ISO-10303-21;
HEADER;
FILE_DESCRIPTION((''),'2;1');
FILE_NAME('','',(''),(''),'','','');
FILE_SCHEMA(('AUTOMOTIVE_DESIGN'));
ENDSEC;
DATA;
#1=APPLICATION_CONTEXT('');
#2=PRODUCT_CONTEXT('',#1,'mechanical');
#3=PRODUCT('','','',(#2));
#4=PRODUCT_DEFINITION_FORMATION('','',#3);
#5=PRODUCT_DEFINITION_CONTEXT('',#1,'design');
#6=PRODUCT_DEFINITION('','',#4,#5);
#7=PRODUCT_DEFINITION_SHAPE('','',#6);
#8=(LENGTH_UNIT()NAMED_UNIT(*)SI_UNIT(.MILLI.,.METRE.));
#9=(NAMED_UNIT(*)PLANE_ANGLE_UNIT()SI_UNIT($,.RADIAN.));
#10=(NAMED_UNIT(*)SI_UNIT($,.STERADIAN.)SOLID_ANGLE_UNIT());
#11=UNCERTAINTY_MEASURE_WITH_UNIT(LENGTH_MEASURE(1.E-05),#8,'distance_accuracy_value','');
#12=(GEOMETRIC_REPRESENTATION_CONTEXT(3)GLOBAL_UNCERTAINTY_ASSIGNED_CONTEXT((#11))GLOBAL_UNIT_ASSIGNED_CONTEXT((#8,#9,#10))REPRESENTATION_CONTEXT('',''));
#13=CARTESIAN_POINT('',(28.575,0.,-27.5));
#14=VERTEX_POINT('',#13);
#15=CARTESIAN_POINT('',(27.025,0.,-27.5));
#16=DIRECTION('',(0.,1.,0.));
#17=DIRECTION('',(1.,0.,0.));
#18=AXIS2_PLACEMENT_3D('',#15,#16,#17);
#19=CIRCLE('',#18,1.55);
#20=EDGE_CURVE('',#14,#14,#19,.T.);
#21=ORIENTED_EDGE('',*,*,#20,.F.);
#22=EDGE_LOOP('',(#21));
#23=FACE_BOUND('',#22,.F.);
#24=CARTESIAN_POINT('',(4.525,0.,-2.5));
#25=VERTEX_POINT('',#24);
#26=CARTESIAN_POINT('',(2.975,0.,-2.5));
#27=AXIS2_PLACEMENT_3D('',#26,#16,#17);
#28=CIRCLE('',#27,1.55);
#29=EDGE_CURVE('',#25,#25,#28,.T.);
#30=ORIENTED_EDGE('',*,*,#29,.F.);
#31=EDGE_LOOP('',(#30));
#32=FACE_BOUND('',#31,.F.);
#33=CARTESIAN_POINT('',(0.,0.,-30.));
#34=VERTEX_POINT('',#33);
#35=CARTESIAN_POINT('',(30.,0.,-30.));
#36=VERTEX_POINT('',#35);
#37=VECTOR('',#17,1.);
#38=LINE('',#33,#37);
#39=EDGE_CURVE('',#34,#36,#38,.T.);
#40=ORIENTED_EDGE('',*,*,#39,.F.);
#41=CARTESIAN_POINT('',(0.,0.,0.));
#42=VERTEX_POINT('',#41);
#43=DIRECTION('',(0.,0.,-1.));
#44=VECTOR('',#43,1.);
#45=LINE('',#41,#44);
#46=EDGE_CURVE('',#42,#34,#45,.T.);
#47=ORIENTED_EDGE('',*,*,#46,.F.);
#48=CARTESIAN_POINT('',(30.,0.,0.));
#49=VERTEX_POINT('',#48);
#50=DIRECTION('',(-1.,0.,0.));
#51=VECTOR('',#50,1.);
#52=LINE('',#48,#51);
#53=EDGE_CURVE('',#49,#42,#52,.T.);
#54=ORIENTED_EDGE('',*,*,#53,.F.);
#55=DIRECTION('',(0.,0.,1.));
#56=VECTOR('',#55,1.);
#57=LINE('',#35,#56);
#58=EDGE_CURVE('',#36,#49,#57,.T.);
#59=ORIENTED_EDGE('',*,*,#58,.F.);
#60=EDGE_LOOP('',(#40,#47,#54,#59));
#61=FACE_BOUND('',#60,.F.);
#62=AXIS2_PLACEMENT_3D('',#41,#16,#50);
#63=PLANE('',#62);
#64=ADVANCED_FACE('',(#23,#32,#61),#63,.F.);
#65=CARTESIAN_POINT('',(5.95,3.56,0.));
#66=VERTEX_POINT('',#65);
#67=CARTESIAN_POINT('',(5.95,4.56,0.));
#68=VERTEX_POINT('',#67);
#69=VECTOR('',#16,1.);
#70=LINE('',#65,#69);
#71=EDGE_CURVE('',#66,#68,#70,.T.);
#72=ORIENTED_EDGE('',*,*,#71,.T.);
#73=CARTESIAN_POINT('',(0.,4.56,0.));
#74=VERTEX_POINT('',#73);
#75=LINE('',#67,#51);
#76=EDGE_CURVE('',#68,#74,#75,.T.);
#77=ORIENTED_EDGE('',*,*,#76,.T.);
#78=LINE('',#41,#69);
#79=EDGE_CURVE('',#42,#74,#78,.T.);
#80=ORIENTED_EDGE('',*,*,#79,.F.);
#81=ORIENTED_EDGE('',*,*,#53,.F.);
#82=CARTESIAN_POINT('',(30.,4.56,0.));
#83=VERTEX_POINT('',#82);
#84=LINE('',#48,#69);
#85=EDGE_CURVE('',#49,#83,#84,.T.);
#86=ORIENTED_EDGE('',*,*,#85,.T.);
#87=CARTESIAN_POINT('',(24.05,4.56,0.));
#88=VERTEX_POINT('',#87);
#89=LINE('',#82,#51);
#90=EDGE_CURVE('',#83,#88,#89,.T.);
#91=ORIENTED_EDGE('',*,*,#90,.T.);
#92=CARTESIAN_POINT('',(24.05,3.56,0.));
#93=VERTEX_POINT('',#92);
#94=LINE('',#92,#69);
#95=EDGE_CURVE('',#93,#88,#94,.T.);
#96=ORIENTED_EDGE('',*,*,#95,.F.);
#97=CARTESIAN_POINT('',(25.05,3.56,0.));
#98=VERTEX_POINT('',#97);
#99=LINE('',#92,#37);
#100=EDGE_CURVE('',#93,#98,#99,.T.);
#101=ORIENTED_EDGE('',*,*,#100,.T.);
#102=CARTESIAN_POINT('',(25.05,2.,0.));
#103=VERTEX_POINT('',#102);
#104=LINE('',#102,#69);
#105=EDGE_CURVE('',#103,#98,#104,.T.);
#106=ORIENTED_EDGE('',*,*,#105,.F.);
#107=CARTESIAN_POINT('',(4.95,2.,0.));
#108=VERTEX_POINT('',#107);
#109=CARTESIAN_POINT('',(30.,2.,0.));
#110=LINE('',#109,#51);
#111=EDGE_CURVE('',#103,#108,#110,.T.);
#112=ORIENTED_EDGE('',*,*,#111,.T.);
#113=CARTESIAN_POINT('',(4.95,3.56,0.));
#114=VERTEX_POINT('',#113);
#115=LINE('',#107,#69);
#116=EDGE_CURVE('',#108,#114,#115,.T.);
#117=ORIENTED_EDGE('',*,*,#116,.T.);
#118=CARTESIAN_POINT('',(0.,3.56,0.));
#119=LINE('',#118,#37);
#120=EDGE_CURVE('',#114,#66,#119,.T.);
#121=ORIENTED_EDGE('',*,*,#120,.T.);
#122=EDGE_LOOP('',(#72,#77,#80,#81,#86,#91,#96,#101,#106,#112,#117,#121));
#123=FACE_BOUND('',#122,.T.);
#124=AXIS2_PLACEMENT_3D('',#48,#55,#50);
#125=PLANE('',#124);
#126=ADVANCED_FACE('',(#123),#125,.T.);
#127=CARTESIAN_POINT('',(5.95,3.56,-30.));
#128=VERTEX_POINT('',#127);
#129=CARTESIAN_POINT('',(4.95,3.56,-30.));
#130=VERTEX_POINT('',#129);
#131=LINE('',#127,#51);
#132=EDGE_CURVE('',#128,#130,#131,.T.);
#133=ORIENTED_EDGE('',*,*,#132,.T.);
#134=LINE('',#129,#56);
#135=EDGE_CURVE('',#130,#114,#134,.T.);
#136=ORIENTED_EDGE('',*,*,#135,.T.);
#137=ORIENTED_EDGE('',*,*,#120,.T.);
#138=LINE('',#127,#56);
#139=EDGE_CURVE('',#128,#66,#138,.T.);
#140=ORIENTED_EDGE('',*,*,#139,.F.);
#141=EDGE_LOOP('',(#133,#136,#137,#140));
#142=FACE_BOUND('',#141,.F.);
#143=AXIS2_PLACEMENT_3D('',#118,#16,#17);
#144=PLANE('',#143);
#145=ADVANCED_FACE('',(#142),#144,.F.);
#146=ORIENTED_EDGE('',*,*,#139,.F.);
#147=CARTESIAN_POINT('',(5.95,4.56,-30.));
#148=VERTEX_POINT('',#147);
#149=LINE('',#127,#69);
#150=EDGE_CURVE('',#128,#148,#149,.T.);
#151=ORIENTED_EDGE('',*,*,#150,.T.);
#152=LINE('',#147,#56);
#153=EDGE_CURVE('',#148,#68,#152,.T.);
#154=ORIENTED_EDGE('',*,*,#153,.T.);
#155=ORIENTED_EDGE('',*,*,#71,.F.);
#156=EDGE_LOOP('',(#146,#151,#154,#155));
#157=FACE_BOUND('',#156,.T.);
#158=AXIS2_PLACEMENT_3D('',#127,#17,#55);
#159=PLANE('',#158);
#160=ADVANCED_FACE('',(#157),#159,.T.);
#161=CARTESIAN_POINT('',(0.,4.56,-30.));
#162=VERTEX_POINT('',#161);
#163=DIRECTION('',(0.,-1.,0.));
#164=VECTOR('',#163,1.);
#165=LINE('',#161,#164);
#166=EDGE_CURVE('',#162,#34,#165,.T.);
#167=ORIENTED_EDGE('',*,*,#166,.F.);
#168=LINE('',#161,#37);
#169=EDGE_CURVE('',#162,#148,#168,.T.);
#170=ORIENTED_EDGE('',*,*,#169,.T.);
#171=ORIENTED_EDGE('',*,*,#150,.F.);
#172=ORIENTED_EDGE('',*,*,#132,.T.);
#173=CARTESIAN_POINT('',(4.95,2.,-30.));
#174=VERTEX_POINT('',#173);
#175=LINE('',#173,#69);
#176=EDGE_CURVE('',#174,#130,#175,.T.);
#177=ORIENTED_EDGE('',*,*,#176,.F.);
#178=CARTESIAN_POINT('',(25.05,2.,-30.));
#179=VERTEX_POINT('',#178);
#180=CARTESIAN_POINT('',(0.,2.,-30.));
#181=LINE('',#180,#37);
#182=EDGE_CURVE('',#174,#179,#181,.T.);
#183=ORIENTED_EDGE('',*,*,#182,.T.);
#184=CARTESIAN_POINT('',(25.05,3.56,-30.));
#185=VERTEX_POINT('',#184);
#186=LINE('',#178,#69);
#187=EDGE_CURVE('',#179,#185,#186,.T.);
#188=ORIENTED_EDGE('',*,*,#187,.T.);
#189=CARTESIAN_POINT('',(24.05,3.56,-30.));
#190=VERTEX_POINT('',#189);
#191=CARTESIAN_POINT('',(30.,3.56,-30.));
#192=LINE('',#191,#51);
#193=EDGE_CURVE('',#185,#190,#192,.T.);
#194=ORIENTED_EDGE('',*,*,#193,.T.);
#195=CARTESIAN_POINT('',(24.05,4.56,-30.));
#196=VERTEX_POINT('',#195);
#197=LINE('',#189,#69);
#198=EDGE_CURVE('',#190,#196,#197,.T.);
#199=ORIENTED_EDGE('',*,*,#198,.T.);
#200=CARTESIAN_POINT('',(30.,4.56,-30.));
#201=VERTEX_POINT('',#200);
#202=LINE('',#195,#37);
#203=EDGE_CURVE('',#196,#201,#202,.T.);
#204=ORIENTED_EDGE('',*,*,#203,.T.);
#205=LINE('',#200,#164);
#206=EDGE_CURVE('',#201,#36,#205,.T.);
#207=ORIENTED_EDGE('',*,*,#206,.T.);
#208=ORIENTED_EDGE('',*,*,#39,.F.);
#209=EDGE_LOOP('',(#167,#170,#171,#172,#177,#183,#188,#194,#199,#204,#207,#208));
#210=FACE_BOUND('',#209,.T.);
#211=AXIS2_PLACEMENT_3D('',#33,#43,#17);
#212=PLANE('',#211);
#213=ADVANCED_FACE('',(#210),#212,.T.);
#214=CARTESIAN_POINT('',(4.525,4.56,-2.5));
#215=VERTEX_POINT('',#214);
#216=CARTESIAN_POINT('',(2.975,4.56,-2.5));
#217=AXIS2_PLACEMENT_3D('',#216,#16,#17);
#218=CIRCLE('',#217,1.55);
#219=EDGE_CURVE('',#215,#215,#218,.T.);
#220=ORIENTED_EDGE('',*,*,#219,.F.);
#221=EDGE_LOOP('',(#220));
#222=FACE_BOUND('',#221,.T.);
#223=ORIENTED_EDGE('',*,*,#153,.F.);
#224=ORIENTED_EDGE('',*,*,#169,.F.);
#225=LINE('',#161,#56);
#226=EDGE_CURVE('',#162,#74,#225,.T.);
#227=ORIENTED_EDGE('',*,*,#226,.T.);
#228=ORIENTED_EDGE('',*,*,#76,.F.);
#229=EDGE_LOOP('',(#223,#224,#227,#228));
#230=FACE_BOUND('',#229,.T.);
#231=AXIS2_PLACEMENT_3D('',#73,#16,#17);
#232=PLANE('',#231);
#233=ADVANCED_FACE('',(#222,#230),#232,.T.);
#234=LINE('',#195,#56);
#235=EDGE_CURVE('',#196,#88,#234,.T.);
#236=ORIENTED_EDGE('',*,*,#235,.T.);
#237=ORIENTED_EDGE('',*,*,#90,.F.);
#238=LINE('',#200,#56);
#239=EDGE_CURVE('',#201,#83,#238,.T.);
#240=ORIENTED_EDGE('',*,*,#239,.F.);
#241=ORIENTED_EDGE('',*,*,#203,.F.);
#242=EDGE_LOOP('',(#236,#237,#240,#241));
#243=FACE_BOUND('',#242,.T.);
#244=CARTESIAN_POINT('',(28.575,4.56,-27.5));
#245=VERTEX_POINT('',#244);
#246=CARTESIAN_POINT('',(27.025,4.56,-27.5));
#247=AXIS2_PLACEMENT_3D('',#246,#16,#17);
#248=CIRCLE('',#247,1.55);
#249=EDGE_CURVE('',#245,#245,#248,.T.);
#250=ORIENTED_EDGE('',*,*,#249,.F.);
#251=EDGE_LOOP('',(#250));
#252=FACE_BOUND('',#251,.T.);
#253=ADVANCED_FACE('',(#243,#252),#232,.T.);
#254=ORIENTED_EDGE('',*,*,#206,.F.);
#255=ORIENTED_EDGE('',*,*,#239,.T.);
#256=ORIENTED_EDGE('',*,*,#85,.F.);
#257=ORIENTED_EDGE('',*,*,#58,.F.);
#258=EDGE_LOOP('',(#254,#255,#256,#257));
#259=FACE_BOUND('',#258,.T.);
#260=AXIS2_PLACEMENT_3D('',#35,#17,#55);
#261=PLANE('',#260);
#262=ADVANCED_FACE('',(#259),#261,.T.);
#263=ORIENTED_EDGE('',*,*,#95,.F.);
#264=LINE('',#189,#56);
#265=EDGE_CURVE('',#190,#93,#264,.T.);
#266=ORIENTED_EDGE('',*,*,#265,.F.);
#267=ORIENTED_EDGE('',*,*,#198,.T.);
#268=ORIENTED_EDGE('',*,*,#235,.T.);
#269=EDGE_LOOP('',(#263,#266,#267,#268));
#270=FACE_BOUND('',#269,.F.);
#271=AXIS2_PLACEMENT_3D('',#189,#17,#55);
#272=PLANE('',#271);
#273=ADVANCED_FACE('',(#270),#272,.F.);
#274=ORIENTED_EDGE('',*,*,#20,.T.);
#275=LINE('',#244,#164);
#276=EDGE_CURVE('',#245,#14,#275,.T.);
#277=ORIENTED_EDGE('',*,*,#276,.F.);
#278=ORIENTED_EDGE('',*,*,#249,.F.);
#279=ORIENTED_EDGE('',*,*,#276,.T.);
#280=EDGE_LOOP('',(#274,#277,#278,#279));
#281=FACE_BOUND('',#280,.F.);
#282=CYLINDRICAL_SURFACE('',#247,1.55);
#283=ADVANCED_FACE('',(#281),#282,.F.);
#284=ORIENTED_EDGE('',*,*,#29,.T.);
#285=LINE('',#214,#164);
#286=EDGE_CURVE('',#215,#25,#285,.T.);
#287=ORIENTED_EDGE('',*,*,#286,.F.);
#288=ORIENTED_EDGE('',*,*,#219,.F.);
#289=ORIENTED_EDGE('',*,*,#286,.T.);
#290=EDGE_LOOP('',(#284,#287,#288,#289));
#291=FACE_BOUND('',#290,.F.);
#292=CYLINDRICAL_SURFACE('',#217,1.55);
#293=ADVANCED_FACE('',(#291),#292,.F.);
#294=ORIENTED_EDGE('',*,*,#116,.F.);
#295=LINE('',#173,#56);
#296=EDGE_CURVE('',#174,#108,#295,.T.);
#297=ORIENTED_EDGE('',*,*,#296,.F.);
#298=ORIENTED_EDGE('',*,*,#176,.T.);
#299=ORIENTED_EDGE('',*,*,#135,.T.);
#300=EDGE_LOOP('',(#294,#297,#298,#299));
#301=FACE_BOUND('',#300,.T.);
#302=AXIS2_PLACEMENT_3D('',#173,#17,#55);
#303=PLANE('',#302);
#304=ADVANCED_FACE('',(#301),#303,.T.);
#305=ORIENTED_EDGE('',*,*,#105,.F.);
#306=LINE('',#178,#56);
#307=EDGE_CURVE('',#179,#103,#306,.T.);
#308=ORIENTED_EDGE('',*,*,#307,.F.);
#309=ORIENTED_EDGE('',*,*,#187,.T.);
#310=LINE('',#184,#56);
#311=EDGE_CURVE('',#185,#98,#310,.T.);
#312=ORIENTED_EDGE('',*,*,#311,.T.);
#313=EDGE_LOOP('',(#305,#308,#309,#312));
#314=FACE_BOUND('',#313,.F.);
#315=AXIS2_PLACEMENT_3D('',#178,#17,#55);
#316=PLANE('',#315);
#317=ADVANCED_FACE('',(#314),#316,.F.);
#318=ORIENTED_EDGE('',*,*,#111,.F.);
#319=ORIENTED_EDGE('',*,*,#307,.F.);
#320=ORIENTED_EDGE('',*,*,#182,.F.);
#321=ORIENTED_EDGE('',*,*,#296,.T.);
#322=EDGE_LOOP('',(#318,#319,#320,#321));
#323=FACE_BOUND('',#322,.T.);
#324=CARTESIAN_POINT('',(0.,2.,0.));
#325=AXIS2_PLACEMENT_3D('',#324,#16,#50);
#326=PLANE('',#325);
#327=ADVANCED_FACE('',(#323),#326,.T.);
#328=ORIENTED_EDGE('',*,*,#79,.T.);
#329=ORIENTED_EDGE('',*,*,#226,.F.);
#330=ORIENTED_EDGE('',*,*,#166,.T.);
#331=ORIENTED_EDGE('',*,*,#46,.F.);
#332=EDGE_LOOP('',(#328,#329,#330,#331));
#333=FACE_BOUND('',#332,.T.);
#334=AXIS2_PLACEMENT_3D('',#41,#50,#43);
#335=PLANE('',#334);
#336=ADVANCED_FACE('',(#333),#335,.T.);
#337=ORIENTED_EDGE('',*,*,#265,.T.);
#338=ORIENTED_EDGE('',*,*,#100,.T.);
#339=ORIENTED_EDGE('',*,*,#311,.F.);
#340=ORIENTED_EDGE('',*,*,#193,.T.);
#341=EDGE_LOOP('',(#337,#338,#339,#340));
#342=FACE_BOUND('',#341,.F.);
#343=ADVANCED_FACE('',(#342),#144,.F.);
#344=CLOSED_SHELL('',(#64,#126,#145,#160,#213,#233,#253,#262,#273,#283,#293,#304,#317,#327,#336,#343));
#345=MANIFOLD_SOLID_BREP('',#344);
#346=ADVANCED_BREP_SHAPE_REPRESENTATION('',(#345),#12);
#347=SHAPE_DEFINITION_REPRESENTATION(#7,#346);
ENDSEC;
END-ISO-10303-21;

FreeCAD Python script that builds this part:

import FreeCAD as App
import Part
import Sketcher
Q = App.Units.Quantity

doc = App.newDocument("Part")
params = doc.addObject("Spreadsheet::Sheet", "Params")
for row, (alias, value) in enumerate([
    ("sketch1_width", "30 mm"),
    ("pad1_length", "2 mm"),
    ("sketch2_height", "30 mm"),
    ("sketch2_width", "4.95 mm"),
    ("pad2_length", "1.56 mm"),
    ("sketch3_height", "30 mm"),
    ("sketch3_width", "5.95 mm"),
    ("pad3_length", "1 mm"),
    ("sketch4_diameter", "3.1 mm"),
    ("pocket1_length", "10 mm"),
], start=1):
    params.set(f"A{row}", alias)
    params.set(f"B{row}", "=" + value)
    params.setAlias(f"B{row}", alias)

body = doc.addObject("PartDesign::Body", "Body")

sketch1 = body.newObject("Sketcher::SketchObject", "Sketch")
sketch1.AttachmentSupport = (doc.getObject("XZ_Plane"), [""])
sketch1.MapMode = "FlatFace"
sketch1.addGeometry([
    Part.LineSegment(App.Vector(0, -30, 0), App.Vector(0, 0, 0)),
    Part.LineSegment(App.Vector(0, 0, 0), App.Vector(30, 0, 0)),
    Part.LineSegment(App.Vector(30, 0, 0), App.Vector(30, -30, 0)),
    Part.LineSegment(App.Vector(30, -30, 0), App.Vector(0, -30, 0)),
], False)
sketch1.addConstraint([
    Sketcher.Constraint("Coincident", 0, 2, 1, 1),
    Sketcher.Constraint("Coincident", 1, 2, 2, 1),
    Sketcher.Constraint("Coincident", 2, 2, 3, 1),
    Sketcher.Constraint("Coincident", 3, 2, 0, 1),
    Sketcher.Constraint("Vertical", 0),
    Sketcher.Constraint("Horizontal", 1),
    Sketcher.Constraint("Vertical", 2),
    Sketcher.Constraint("Horizontal", 3),
    Sketcher.Constraint("Coincident", 0, 2, -1, 1),
    Sketcher.Constraint("Equal", 3, 0),
    Sketcher.Constraint("DistanceX", 1, 1, 1, 2, Q("30 mm")),
])
sketch1.setExpression("Constraints[10]", "Params.sketch1_width")
pad1 = body.newObject("PartDesign::Pad", "Pad")
pad1.Profile = sketch1
pad1.setExpression("Length", "Params.pad1_length")
pad1.Reversed = True

sketch2 = body.newObject("Sketcher::SketchObject", "Sketch001")
sketch2.AttachmentSupport = (doc.getObject("XZ_Plane"), [""])
sketch2.MapMode = "FlatFace"
sketch2.AttachmentOffset = App.Placement(App.Vector(0, 0, -2), App.Rotation())
sketch2.addGeometry([
    Part.LineSegment(App.Vector(5, -30, 0), App.Vector(0, -30, 0)),
    Part.LineSegment(App.Vector(0, -30, 0), App.Vector(0, 0, 0)),
    Part.LineSegment(App.Vector(0, 0, 0), App.Vector(5, 0, 0)),
    Part.LineSegment(App.Vector(5, 0, 0), App.Vector(5, -30, 0)),
    Part.LineSegment(App.Vector(30, -30, 0), App.Vector(25.1, -30, 0)),
    Part.LineSegment(App.Vector(25.1, -30, 0), App.Vector(25.1, 0, 0)),
    Part.LineSegment(App.Vector(25.1, 0, 0), App.Vector(30, 0, 0)),
    Part.LineSegment(App.Vector(30, 0, 0), App.Vector(30, -30, 0)),
], False)
sketch2.addConstraint([
    Sketcher.Constraint("Coincident", 0, 2, 1, 1),
    Sketcher.Constraint("Coincident", 1, 2, 2, 1),
    Sketcher.Constraint("Coincident", 2, 2, 3, 1),
    Sketcher.Constraint("Coincident", 3, 2, 0, 1),
    Sketcher.Constraint("Coincident", 4, 2, 5, 1),
    Sketcher.Constraint("Coincident", 5, 2, 6, 1),
    Sketcher.Constraint("Coincident", 6, 2, 7, 1),
    Sketcher.Constraint("Coincident", 7, 2, 4, 1),
    Sketcher.Constraint("Horizontal", 0),
    Sketcher.Constraint("Vertical", 1),
    Sketcher.Constraint("Horizontal", 2),
    Sketcher.Constraint("Vertical", 3),
    Sketcher.Constraint("Horizontal", 4),
    Sketcher.Constraint("Vertical", 5),
    Sketcher.Constraint("Horizontal", 6),
    Sketcher.Constraint("Vertical", 7),
    Sketcher.Constraint("Coincident", 1, 2, -1, 1),
    Sketcher.Constraint("PointOnObject", 5, 2, -1),
    Sketcher.Constraint("Horizontal", 3, 2, 4, 2),
    Sketcher.Constraint("Equal", 2, 4),
    Sketcher.Constraint("DistanceY", 1, 1, 1, 2, Q("30 mm")),
    Sketcher.Constraint("DistanceX", -1, 1, 6, 2, Q("30 mm")),
    Sketcher.Constraint("DistanceX", 0, 2, 0, 1, Q("4.95 mm")),
])
sketch2.setExpression("Constraints[20]", "Params.sketch2_height")
sketch2.setExpression("Constraints[22]", "Params.sketch2_width")
pad2 = body.newObject("PartDesign::Pad", "Pad001")
pad2.Profile = sketch2
pad2.setExpression("Length", "Params.pad2_length")
pad2.Reversed = True

sketch3 = body.newObject("Sketcher::SketchObject", "Sketch002")
sketch3.AttachmentSupport = (doc.getObject("XZ_Plane"), [""])
sketch3.MapMode = "FlatFace"
sketch3.AttachmentOffset = App.Placement(App.Vector(0, 0, -3.56), App.Rotation())
sketch3.addGeometry([
    Part.LineSegment(App.Vector(6, -30, 0), App.Vector(0, -30, 0)),
    Part.LineSegment(App.Vector(0, -30, 0), App.Vector(0, 0, 0)),
    Part.LineSegment(App.Vector(0, 0, 0), App.Vector(6, 0, 0)),
    Part.LineSegment(App.Vector(6, 0, 0), App.Vector(6, -30, 0)),
    Part.LineSegment(App.Vector(30, -30, 0), App.Vector(24, -30, 0)),
    Part.LineSegment(App.Vector(24, -30, 0), App.Vector(24, 0, 0)),
    Part.LineSegment(App.Vector(24, 0, 0), App.Vector(30, 0, 0)),
    Part.LineSegment(App.Vector(30, 0, 0), App.Vector(30, -30, 0)),
], False)
sketch3.addConstraint([
    Sketcher.Constraint("Coincident", 0, 2, 1, 1),
    Sketcher.Constraint("Coincident", 1, 2, 2, 1),
    Sketcher.Constraint("Coincident", 2, 2, 3, 1),
    Sketcher.Constraint("Coincident", 3, 2, 0, 1),
    Sketcher.Constraint("Coincident", 4, 2, 5, 1),
    Sketcher.Constraint("Coincident", 5, 2, 6, 1),
    Sketcher.Constraint("Coincident", 6, 2, 7, 1),
    Sketcher.Constraint("Coincident", 7, 2, 4, 1),
    Sketcher.Constraint("Horizontal", 0),
    Sketcher.Constraint("Vertical", 1),
    Sketcher.Constraint("Horizontal", 2),
    Sketcher.Constraint("Vertical", 3),
    Sketcher.Constraint("Horizontal", 4),
    Sketcher.Constraint("Vertical", 5),
    Sketcher.Constraint("Horizontal", 6),
    Sketcher.Constraint("Vertical", 7),
    Sketcher.Constraint("Coincident", 1, 2, -1, 1),
    Sketcher.Constraint("PointOnObject", 5, 2, -1),
    Sketcher.Constraint("Horizontal", 3, 2, 4, 2),
    Sketcher.Constraint("Equal", 2, 4),
    Sketcher.Constraint("DistanceY", 1, 1, 1, 2, Q("30 mm")),
    Sketcher.Constraint("DistanceX", -1, 1, 6, 2, Q("30 mm")),
    Sketcher.Constraint("DistanceX", 0, 2, 0, 1, Q("5.95 mm")),
])
sketch3.setExpression("Constraints[20]", "Params.sketch3_height")
sketch3.setExpression("Constraints[22]", "Params.sketch3_width")
pad3 = body.newObject("PartDesign::Pad", "Pad002")
pad3.Profile = sketch3
pad3.setExpression("Length", "Params.pad3_length")
pad3.Reversed = True

sketch4 = body.newObject("Sketcher::SketchObject", "Sketch003")
sketch4.AttachmentSupport = (doc.getObject("XZ_Plane"), [""])
sketch4.MapMode = "FlatFace"
sketch4.AttachmentOffset = App.Placement(App.Vector(0, 0, -4.56), App.Rotation())
sketch4.addGeometry([
    Part.Circle(App.Vector(3, -2.5, 0), App.Vector(0, 0, 1), 1.6),
    Part.Circle(App.Vector(27, -27.5, 0), App.Vector(0, 0, 1), 1.6),
], False)
sketch4.addConstraint([
    Sketcher.Constraint("Equal", 0, 1),
    Sketcher.Constraint("Diameter", 0, Q("3.1 mm")),
    Sketcher.Constraint("DistanceY", 0, 3, -1, 1, Q("2.5 mm")),
    Sketcher.Constraint("DistanceX", -1, 1, 0, 3, Q("2.975 mm")),
    Sketcher.Constraint("DistanceY", 1, 3, 0, 3, Q("25 mm")),
    Sketcher.Constraint("DistanceX", 0, 3, 1, 3, Q("24.05 mm")),
])
sketch4.setExpression("Constraints[1]", "Params.sketch4_diameter")
pocket1 = body.newObject("PartDesign::Pocket", "Pocket")
pocket1.Profile = sketch4
pocket1.setExpression("Length", "Params.pocket1_length")
pocket1.Reversed = True

doc.recompute()
